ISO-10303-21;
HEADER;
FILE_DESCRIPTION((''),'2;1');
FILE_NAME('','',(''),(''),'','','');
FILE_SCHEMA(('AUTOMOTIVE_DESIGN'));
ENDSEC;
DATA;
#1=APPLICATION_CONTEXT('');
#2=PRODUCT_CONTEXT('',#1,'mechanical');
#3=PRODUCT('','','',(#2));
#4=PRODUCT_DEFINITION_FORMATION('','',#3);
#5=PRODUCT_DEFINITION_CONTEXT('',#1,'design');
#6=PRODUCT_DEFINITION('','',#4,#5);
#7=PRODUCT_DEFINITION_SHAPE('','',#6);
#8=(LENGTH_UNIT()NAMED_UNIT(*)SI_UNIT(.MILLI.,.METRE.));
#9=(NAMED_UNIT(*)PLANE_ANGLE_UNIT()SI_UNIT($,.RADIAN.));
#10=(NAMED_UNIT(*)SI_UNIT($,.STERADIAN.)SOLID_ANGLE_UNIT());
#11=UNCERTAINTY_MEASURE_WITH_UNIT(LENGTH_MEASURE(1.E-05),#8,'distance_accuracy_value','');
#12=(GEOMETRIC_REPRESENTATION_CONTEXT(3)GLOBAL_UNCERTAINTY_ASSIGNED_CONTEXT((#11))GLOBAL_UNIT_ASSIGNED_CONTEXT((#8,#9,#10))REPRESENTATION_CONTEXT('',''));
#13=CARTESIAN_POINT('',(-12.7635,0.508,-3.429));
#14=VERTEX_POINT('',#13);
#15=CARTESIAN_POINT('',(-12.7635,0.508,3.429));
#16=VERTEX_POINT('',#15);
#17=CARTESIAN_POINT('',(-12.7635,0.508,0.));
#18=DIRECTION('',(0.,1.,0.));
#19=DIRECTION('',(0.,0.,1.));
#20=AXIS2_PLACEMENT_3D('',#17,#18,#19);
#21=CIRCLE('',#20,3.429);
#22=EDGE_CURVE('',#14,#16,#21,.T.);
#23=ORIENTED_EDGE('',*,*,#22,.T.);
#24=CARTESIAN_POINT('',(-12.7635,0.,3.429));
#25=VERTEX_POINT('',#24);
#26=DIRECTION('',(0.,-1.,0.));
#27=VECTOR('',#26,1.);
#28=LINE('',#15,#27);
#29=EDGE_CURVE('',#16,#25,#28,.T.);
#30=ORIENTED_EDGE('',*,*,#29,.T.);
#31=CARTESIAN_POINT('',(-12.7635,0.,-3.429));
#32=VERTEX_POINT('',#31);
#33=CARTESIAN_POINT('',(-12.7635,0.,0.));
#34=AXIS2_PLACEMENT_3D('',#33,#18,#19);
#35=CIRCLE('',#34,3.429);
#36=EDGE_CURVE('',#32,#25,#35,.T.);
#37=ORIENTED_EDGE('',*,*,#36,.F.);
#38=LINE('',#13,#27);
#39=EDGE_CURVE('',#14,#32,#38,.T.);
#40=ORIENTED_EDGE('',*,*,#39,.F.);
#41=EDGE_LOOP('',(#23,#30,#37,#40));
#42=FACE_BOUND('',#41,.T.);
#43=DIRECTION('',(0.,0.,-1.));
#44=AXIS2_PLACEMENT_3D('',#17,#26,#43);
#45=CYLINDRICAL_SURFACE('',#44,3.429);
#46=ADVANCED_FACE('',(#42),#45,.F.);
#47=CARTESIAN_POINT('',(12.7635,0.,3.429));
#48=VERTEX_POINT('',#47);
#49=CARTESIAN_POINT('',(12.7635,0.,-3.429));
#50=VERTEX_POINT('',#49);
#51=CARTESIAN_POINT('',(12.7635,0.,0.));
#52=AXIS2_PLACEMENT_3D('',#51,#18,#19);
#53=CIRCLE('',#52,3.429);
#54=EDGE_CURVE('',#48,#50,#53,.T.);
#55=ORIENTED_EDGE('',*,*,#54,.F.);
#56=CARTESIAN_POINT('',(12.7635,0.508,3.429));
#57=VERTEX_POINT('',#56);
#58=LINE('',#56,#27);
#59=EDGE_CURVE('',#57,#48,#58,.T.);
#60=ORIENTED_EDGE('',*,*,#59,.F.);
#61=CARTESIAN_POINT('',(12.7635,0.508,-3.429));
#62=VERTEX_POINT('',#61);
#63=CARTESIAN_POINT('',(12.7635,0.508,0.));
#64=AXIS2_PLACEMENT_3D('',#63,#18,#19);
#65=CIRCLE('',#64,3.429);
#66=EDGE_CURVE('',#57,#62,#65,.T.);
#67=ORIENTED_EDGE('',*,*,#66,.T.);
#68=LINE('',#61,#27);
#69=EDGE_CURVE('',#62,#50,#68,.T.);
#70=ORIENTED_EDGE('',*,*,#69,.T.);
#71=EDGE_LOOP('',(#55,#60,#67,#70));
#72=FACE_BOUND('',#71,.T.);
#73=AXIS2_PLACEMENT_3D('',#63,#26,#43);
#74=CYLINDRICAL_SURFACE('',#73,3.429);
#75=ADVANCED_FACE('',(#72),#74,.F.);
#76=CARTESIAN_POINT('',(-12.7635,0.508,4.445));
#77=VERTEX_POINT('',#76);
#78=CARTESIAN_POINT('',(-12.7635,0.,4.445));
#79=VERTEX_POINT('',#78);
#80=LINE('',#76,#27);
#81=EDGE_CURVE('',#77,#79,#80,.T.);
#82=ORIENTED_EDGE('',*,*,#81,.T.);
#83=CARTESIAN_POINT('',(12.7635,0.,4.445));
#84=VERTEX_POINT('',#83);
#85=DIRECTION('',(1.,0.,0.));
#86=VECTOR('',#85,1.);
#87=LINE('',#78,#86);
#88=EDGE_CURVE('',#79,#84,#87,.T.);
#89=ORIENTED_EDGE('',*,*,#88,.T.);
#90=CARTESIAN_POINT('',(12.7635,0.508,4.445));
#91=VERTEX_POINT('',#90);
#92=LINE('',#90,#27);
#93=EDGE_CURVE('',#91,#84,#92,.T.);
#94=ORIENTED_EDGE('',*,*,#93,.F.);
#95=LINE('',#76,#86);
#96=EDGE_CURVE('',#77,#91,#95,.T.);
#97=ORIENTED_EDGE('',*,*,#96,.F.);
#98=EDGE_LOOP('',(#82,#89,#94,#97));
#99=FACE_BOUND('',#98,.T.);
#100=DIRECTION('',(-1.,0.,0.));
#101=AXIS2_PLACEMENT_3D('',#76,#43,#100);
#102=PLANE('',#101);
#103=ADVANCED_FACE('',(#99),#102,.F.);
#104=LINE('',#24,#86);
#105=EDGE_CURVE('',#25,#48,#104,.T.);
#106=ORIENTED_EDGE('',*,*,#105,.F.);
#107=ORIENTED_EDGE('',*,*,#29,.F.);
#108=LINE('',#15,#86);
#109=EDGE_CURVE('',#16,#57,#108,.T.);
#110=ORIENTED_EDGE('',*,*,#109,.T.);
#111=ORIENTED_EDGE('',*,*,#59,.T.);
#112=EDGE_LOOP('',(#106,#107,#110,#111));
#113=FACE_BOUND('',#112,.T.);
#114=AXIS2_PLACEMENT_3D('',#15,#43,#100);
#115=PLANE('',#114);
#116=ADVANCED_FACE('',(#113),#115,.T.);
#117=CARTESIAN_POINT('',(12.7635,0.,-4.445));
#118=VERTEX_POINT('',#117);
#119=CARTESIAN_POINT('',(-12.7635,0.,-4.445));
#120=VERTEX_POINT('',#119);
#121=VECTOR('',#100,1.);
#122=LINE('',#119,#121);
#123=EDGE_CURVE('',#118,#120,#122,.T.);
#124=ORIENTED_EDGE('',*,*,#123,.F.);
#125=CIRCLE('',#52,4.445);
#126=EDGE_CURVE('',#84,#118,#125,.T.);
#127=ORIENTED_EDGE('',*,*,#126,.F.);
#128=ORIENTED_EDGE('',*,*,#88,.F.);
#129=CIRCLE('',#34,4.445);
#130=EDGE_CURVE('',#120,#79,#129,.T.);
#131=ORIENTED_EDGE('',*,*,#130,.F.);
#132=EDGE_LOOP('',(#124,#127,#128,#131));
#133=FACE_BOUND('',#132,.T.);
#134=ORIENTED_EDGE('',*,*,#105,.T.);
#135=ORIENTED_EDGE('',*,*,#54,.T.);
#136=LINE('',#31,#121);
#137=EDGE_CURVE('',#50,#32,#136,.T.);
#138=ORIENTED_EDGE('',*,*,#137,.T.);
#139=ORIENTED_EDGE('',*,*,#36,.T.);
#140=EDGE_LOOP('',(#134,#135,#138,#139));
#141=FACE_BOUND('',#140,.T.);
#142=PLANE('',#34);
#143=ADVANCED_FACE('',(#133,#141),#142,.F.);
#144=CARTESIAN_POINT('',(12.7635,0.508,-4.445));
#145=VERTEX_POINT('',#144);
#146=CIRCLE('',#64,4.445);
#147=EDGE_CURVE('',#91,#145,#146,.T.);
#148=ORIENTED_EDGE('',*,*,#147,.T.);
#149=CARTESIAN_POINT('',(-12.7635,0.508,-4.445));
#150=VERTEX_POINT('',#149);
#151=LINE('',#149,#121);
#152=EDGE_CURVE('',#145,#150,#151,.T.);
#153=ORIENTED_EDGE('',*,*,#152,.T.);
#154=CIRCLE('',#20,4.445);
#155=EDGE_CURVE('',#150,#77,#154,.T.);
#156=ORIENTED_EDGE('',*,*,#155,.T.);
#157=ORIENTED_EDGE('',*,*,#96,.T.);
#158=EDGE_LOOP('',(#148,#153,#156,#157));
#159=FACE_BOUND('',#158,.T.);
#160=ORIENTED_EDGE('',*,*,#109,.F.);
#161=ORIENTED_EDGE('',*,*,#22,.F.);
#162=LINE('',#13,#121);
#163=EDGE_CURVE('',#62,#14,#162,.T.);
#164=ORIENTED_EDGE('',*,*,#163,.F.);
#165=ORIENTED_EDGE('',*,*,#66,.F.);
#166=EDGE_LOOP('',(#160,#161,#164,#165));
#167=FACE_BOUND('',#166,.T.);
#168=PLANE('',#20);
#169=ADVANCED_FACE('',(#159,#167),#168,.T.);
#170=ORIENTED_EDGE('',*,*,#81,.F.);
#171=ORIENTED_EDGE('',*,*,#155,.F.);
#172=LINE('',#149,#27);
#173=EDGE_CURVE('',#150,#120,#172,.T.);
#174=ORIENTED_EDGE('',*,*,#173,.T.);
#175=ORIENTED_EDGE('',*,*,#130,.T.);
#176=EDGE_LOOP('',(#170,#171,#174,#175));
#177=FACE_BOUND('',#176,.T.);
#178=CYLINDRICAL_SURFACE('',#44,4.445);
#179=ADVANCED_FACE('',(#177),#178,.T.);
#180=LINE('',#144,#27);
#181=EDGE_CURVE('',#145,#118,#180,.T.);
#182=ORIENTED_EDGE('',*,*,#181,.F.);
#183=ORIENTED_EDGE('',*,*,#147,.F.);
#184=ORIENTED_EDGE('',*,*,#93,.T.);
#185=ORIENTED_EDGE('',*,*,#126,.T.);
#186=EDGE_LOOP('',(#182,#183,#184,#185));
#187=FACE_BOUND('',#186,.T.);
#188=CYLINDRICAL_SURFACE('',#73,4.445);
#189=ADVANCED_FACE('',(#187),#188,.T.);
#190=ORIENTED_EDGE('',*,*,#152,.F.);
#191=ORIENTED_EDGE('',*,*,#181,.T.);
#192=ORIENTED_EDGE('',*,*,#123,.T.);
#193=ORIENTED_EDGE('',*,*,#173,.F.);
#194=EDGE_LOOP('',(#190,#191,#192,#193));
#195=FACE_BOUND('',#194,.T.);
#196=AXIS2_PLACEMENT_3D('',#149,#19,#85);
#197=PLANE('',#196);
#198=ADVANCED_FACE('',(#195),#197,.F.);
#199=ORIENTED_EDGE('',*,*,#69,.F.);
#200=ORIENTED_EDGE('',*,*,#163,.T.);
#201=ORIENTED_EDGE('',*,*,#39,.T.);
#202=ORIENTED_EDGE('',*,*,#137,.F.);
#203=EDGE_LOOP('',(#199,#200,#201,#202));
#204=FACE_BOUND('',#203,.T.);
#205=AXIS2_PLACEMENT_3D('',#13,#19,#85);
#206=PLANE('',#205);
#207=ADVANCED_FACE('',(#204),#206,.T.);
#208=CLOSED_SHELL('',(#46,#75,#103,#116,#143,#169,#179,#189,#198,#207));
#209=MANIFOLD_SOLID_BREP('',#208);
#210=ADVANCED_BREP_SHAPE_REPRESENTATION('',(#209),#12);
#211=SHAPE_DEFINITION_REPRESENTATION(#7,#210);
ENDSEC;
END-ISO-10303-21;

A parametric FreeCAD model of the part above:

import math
import FreeCAD as App
import Part
import Sketcher

V = App.Vector
Q = App.Units.Quantity

doc = App.newDocument("Part")
body = doc.addObject("PartDesign::Body", "Body")

# Sketch on XZ plane
sketch1 = body.newObject("Sketcher::SketchObject", "Sketch")
sketch1.AttachmentSupport = (doc.getObject("XZ_Plane"), [""])
sketch1.MapMode = "FlatFace"
sketch1.addGeometry([
    Part.LineSegment(V(12.7635, -4.445, 0), V(-12.7635, -4.445, 0)),  # 0
    Part.ArcOfCircle(Part.Circle(V(-12.7635, 0, 0), V(0, 0, 1), 4.445), math.radians(90), math.radians(270)),  # 1
    Part.LineSegment(V(-12.7635, 4.445, 0), V(12.7635, 4.445, 0)),  # 2
    Part.ArcOfCircle(Part.Circle(V(12.7635, 0, 0), V(0, 0, 1), 4.445), math.radians(-90), math.radians(90)),  # 3
    Part.LineSegment(V(-12.7635, -3.429, 0), V(12.7635, -3.429, 0)),  # 4
    Part.ArcOfCircle(Part.Circle(V(12.7635, 0, 0), V(0, 0, 1), 3.429), math.radians(-90), math.radians(90)),  # 5
    Part.LineSegment(V(12.7635, 3.429, 0), V(-12.7635, 3.429, 0)),  # 6
    Part.ArcOfCircle(Part.Circle(V(-12.7635, 0, 0), V(0, 0, 1), 3.429), math.radians(90), math.radians(270)),  # 7
], False)
sketch1.addConstraint([
    Sketcher.Constraint("Tangent", 0, 2, 1, 2),
    Sketcher.Constraint("Tangent", 1, 1, 2, 1),
    Sketcher.Constraint("Tangent", 2, 2, 3, 2),
    Sketcher.Constraint("Tangent", 3, 1, 0, 1),
    Sketcher.Constraint("Tangent", 4, 2, 5, 1),
    Sketcher.Constraint("Tangent", 5, 2, 6, 1),
    Sketcher.Constraint("Tangent", 6, 2, 7, 1),
    Sketcher.Constraint("Tangent", 7, 2, 4, 1),
    Sketcher.Constraint("Horizontal", 0),
    Sketcher.Constraint("Horizontal", 2),
    Sketcher.Constraint("Horizontal", 4),
    Sketcher.Constraint("Horizontal", 6),
    Sketcher.Constraint("Coincident", 5, 3, 3, 3),
    Sketcher.Constraint("Symmetric", 1, 3, 3, 3, -1, 1),
    Sketcher.Constraint("Vertical", 7, 3, 0, 2),
    Sketcher.Constraint("Radius", 1, Q("0.175 in")),
    Sketcher.Constraint("Radius", 5, Q("0.135 in")),
    Sketcher.Constraint("DistanceX", 0, 2, 0, 1, Q("1.005 in")),
])
pad1 = body.newObject("PartDesign::Pad", "Pad")
pad1.Profile = sketch1
pad1.Length = Q("0.02 in")
pad1.Reversed = True

doc.recompute()
